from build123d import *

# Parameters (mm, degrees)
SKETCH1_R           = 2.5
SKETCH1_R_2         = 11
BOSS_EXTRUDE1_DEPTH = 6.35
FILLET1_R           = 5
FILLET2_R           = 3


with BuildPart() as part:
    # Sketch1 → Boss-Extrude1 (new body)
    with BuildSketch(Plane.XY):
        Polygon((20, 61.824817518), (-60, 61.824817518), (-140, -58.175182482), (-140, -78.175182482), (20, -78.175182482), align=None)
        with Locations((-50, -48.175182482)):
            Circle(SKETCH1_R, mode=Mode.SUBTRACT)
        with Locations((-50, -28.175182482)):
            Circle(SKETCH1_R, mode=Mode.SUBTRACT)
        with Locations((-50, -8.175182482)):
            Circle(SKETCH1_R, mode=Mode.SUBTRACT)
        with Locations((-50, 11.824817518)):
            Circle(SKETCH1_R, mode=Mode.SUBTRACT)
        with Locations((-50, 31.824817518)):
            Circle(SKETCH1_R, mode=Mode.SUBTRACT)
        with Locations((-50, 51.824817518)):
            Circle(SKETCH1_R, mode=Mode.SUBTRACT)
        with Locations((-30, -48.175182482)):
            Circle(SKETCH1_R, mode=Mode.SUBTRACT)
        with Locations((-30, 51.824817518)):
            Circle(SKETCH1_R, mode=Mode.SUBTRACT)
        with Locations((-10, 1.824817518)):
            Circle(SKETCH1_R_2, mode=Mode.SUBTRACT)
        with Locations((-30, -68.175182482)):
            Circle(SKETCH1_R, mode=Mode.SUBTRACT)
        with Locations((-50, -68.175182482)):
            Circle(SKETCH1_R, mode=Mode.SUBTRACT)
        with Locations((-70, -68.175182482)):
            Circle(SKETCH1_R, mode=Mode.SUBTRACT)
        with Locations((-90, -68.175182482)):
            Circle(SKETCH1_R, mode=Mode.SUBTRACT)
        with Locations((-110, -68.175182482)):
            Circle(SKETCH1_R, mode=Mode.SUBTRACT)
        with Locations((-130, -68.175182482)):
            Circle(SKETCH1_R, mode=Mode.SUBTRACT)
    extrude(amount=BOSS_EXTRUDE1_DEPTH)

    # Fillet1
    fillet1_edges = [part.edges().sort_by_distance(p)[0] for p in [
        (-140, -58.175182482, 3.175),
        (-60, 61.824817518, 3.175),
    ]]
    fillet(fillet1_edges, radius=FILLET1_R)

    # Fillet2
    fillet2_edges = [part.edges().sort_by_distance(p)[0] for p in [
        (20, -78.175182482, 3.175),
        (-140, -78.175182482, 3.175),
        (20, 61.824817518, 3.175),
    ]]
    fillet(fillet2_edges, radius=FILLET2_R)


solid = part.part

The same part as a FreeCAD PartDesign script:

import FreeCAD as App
import Part
import Sketcher

V = App.Vector
Q = App.Units.Quantity


def edges_at(feature, points):
    """Names of the edges that pass closest to the given points."""
    edges = feature.Shape.Edges
    near = lambda p: min(range(len(edges)), key=lambda i: edges[i].distToShape(Part.Vertex(*p))[0])
    return sorted({f"Edge{near(p) + 1}" for p in points})


def add_polygon(sketch, points):
    """Adds a closed chain of lines whose ends are joined by coincident constraints."""
    first, n = sketch.GeometryCount, len(points)
    for a, b in zip(points, points[1:] + points[:1]):
        sketch.addGeometry(Part.LineSegment(App.Vector(*a, 0), App.Vector(*b, 0)), False)
    for i in range(n):
        sketch.addConstraint(Sketcher.Constraint("Coincident", first + i, 2, first + (i + 1) % n, 1))

doc = App.newDocument("Part")
body = doc.addObject("PartDesign::Body", "Body")

# Sketch on XY plane
sketch1 = doc.addObject("Sketcher::SketchObject", "Sketch")
body.addObject(sketch1)
sketch1.AttachmentSupport = (doc.XY_Plane, [""])
sketch1.MapMode = "FlatFace"
add_polygon(sketch1, [(20, 61.824818), (-60, 61.824818), (-140, -58.175182), (-140, -78.175182), (20, -78.175182)])  # lines 0-4
sketch1.addGeometry(Part.Circle(V(-130, -68.175182, 0), V(0, 0, 1), 2.5), False)  # 5
sketch1.addGeometry(Part.Circle(V(-110, -68.175182, 0), V(0, 0, 1), 2.5), False)  # 6
sketch1.addGeometry(Part.Circle(V(-90, -68.175182, 0), V(0, 0, 1), 2.5), False)  # 7
sketch1.addGeometry(Part.Circle(V(-70, -68.175182, 0), V(0, 0, 1), 2.5), False)  # 8
sketch1.addGeometry(Part.Circle(V(-50, -68.175182, 0), V(0, 0, 1), 2.5), False)  # 9
sketch1.addGeometry(Part.Circle(V(-50, -48.175182, 0), V(0, 0, 1), 2.5), False)  # 10
sketch1.addGeometry(Part.Circle(V(-30, -68.175182, 0), V(0, 0, 1), 2.5), False)  # 11
sketch1.addGeometry(Part.Circle(V(-30, -48.175182, 0), V(0, 0, 1), 2.5), False)  # 12
sketch1.addGeometry(Part.Circle(V(-50, -28.175182, 0), V(0, 0, 1), 2.5), False)  # 13
sketch1.addGeometry(Part.Circle(V(-50, -8.175182, 0), V(0, 0, 1), 2.5), False)  # 14
sketch1.addGeometry(Part.Circle(V(-50, 11.824818, 0), V(0, 0, 1), 2.5), False)  # 15
sketch1.addGeometry(Part.Circle(V(-10, 1.824818, 0), V(0, 0, 1), 11), False)  # 16
sketch1.addGeometry(Part.Circle(V(-50, 31.824818, 0), V(0, 0, 1), 2.5), False)  # 17
sketch1.addGeometry(Part.Circle(V(-50, 51.824818, 0), V(0, 0, 1), 2.5), False)  # 18
sketch1.addGeometry(Part.Circle(V(-30, 51.824818, 0), V(0, 0, 1), 2.5), False)  # 19
sketch1.addConstraint([
    Sketcher.Constraint("Horizontal", 0),
    Sketcher.Constraint("Vertical", 2),
    Sketcher.Constraint("Horizontal", 3),
    Sketcher.Constraint("Vertical", 4),
    Sketcher.Constraint("Equal", 5, 6),
    Sketcher.Constraint("Equal", 6, 7),
    Sketcher.Constraint("Equal", 7, 8),
    Sketcher.Constraint("Equal", 8, 9),
    Sketcher.Constraint("Equal", 9, 10),
    Sketcher.Constraint("Equal", 10, 11),
    Sketcher.Constraint("Equal", 11, 12),
    Sketcher.Constraint("Equal", 12, 13),
    Sketcher.Constraint("Equal", 13, 14),
    Sketcher.Constraint("Equal", 14, 15),
    Sketcher.Constraint("Equal", 15, 17),
    Sketcher.Constraint("Equal", 17, 18),
    Sketcher.Constraint("Equal", 18, 19),
    Sketcher.Constraint("Horizontal", 5, 3, 6, 3),
    Sketcher.Constraint("Horizontal", 6, 3, 7, 3),
    Sketcher.Constraint("Horizontal", 7, 3, 8, 3),
    Sketcher.Constraint("Horizontal", 8, 3, 9, 3),
    Sketcher.Constraint("Horizontal", 9, 3, 11, 3),
    Sketcher.Constraint("Horizontal", 10, 3, 12, 3),
    Sketcher.Constraint("Horizontal", 18, 3, 19, 3),
    Sketcher.Constraint("Vertical", 9, 3, 10, 3),
    Sketcher.Constraint("Vertical", 11, 3, 12, 3),
    Sketcher.Constraint("Vertical", 10, 3, 13, 3),
    Sketcher.Constraint("Vertical", 13, 3, 14, 3),
    Sketcher.Constraint("Vertical", 14, 3, 15, 3),
    Sketcher.Constraint("Vertical", 15, 3, 17, 3),
    Sketcher.Constraint("Vertical", 17, 3, 18, 3),
    Sketcher.Constraint("Vertical", 12, 3, 19, 3),
    Sketcher.Constraint("Diameter", 5, Q("5 mm")),
    Sketcher.Constraint("Diameter", 16, Q("22 mm")),
    Sketcher.Constraint("DistanceX", 0, 2, 0, 1, Q("80 mm")),
    Sketcher.Constraint("DistanceX", 3, 1, 3, 2, Q("160 mm")),
    Sketcher.Constraint("DistanceY", 2, 2, 2, 1, Q("20 mm")),
    Sketcher.Constraint("DistanceY", 4, 1, 4, 2, Q("140 mm")),
    Sketcher.Constraint("DistanceX", 5, 3, -1, 1, Q("130 mm")),
    Sketcher.Constraint("DistanceX", 6, 3, -1, 1, Q("110 mm")),
    Sketcher.Constraint("DistanceX", 7, 3, -1, 1, Q("90 mm")),
    Sketcher.Constraint("DistanceX", 8, 3, -1, 1, Q("70 mm")),
    Sketcher.Constraint("DistanceX", 9, 3, -1, 1, Q("50 mm")),
    Sketcher.Constraint("DistanceX", 11, 3, -1, 1, Q("30 mm")),
    Sketcher.Constraint("DistanceX", 16, 3, -1, 1, Q("10 mm")),
    Sketcher.Constraint("DistanceX", 0, 2, -1, 1, Q("60 mm")),
    Sketcher.Constraint("DistanceY", 9, 3, 10, 3, Q("20 mm")),
    Sketcher.Constraint("DistanceY", 10, 3, 13, 3, Q("20 mm")),
    Sketcher.Constraint("DistanceY", 13, 3, 14, 3, Q("20 mm")),
    Sketcher.Constraint("DistanceY", 14, 3, 15, 3, Q("20 mm")),
    Sketcher.Constraint("DistanceY", 14, 3, 16, 3, Q("10 mm")),
    Sketcher.Constraint("DistanceY", 15, 3, 17, 3, Q("20 mm")),
    Sketcher.Constraint("DistanceY", 17, 3, 18, 3, Q("20 mm")),
    Sketcher.Constraint("DistanceY", 18, 3, 0, 2, Q("10 mm")),
    Sketcher.Constraint("DistanceY", 5, 3, -1, 1, Q("68.175182 mm")),
])
pad1 = doc.addObject("PartDesign::Pad", "Pad")
body.addObject(pad1)
pad1.Profile = sketch1
pad1.Length = 6.35
doc.recompute()

fillet = doc.addObject("PartDesign::Fillet", "Fillet")
body.addObject(fillet)
fillet.Base = (pad1, edges_at(pad1, [(-140, -58.175, 3.175), (-60, 61.825, 3.175)]))
fillet.Radius = 5
doc.recompute()

fillet2 = doc.addObject("PartDesign::Fillet", "Fillet001")
body.addObject(fillet2)
fillet2.Base = (fillet, edges_at(fillet, [(20, -78.175, 3.175), (-140, -78.175, 3.175), (20, 61.825, 3.175)]))
fillet2.Radius = 3

doc.recompute()
